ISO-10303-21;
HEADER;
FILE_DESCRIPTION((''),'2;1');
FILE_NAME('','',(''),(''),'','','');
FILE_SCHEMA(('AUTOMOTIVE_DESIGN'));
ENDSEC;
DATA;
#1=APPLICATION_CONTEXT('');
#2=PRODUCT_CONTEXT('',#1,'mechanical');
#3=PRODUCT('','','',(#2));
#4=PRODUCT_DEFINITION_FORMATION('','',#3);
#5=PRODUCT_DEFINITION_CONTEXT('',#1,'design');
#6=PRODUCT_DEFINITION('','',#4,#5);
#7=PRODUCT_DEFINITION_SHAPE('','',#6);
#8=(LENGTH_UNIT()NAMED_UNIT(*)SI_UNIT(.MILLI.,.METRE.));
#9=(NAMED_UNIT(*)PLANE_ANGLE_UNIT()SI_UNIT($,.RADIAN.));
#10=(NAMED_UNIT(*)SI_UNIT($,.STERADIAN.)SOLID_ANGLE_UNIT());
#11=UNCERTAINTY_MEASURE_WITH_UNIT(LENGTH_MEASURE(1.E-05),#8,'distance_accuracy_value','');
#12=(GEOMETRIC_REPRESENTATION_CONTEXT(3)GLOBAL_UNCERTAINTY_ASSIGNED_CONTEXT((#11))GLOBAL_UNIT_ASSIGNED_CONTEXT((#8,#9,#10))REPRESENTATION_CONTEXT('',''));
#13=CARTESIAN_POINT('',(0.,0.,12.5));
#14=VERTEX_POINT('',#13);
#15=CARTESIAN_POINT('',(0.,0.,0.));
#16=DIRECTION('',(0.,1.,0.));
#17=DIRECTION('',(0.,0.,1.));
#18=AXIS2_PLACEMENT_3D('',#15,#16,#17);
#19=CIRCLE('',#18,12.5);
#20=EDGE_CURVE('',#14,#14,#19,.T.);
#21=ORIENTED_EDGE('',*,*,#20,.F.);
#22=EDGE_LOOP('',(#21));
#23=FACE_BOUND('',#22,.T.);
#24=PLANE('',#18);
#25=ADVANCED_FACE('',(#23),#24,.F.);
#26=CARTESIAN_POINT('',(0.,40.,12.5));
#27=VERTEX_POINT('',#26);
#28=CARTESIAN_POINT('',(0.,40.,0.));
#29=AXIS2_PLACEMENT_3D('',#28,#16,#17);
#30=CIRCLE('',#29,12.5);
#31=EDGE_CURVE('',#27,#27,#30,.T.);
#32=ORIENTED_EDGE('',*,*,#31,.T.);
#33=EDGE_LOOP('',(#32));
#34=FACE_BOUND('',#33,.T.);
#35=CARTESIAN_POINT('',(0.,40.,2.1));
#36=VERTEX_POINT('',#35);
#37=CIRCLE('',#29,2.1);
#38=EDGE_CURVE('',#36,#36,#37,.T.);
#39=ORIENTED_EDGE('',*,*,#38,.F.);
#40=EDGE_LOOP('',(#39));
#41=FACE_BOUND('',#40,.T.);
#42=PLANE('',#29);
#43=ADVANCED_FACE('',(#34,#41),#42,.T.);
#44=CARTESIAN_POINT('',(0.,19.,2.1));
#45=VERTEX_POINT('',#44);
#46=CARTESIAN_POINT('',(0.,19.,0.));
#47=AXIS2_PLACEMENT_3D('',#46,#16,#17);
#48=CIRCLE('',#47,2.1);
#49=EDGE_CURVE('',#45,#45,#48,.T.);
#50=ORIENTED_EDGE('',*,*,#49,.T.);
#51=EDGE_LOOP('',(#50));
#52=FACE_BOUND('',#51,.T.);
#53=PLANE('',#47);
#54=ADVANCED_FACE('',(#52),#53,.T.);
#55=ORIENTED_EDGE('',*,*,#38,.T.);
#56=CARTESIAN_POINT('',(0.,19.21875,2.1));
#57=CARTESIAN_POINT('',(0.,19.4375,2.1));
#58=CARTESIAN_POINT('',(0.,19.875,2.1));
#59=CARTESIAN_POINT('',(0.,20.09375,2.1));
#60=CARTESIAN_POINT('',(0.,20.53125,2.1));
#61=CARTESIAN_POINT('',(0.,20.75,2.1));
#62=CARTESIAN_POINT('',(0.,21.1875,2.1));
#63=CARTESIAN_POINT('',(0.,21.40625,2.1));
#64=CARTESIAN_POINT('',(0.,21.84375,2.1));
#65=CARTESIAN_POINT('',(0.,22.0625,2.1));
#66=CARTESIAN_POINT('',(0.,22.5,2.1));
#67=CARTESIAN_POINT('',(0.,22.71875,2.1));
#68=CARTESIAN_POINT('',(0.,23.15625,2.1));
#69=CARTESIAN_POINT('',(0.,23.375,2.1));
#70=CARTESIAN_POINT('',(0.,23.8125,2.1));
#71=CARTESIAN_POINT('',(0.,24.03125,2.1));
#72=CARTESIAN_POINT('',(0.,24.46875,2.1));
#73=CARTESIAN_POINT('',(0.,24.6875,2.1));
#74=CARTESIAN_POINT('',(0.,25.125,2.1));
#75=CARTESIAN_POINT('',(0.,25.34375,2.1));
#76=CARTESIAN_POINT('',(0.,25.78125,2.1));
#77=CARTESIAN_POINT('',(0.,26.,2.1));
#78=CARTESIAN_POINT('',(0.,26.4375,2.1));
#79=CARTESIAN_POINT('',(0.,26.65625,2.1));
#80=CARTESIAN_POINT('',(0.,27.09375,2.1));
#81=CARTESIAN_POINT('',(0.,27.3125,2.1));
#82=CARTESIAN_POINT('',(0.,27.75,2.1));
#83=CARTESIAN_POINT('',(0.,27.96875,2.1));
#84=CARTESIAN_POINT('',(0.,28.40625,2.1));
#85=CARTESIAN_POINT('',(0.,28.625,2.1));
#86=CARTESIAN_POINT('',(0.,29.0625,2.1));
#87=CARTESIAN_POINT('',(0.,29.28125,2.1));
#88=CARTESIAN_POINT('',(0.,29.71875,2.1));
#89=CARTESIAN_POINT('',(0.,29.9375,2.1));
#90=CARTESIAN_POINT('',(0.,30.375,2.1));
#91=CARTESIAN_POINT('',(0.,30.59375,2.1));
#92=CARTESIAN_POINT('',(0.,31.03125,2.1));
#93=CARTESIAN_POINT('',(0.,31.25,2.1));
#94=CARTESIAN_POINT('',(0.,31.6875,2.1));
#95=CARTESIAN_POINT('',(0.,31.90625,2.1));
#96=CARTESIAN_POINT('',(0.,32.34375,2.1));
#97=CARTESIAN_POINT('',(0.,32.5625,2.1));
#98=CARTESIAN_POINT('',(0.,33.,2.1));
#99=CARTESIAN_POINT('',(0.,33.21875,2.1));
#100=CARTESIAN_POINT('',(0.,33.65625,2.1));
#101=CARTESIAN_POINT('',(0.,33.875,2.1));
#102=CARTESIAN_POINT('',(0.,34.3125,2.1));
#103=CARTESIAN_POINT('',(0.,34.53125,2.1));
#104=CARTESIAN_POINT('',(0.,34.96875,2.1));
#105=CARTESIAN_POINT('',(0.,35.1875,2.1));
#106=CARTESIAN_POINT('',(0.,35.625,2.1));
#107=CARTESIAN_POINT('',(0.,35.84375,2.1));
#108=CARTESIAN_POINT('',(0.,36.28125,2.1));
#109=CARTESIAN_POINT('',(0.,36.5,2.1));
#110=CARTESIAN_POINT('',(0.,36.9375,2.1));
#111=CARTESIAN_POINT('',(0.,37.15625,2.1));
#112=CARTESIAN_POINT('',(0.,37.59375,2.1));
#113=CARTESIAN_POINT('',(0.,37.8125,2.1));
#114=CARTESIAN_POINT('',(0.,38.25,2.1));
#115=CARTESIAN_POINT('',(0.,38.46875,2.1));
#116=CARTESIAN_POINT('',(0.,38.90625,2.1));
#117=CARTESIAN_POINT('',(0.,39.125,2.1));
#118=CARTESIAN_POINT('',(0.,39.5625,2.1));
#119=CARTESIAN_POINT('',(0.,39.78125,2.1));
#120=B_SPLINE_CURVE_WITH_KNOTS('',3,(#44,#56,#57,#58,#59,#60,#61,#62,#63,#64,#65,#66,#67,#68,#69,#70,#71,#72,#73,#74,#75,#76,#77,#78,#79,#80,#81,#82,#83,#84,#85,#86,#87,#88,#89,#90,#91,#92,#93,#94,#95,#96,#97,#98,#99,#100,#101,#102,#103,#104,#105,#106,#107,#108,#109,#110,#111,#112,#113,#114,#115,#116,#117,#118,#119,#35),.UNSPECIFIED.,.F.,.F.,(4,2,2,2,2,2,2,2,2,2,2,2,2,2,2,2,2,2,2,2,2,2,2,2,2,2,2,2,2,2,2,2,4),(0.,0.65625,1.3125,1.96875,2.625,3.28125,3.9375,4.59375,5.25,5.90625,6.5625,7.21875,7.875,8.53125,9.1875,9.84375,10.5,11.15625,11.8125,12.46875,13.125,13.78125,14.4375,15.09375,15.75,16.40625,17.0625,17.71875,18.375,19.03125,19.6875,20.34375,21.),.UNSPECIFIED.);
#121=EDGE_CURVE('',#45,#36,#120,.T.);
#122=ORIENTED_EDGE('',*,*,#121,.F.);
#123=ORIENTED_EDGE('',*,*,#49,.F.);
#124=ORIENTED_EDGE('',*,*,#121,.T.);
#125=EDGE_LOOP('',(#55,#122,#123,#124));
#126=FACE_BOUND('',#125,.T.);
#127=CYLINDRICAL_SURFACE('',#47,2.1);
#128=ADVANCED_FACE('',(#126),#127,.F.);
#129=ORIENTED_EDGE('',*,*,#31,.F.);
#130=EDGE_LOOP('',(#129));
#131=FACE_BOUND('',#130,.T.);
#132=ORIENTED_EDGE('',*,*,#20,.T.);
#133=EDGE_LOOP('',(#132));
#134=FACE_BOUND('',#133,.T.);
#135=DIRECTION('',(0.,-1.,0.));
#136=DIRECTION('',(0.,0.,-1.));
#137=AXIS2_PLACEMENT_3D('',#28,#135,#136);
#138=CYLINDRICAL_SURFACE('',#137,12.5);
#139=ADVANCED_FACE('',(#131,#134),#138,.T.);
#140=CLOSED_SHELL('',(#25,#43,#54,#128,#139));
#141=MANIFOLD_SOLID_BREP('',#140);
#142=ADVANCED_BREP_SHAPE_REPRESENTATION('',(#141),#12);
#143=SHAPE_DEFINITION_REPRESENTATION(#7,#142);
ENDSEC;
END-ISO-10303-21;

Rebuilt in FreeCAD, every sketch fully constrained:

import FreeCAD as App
import Part
import Sketcher
from FreeCAD import Vector

doc = App.newDocument("Part")
body = doc.addObject("PartDesign::Body", "Body")

sketch1 = body.newObject("Sketcher::SketchObject", "Sketch")
sketch1.AttachmentSupport = (doc.getObject("XZ_Plane"), [""])
sketch1.MapMode = "FlatFace"
sketch1.addGeometry(Part.Circle(Vector(0, 0, 0), Vector(0, 0, 1), 12.5), False)
sketch1.addConstraint(Sketcher.Constraint("Coincident", 0, 3, -1, 1))
sketch1.addConstraint(Sketcher.Constraint("Diameter", 0, 25.0))
pad1 = body.newObject("PartDesign::Pad", "Pad")
pad1.Profile = sketch1
pad1.Length = 40
pad1.Reversed = True

sketch2 = body.newObject("Sketcher::SketchObject", "Sketch001")
sketch2.AttachmentSupport = (doc.getObject("XZ_Plane"), [""])
sketch2.MapMode = "FlatFace"
sketch2.AttachmentOffset = App.Placement(Vector(0, 0, -40), App.Rotation())
sketch2.addGeometry(Part.Circle(Vector(0, 0, 0), Vector(0, 0, 1), 2.1), False)
sketch2.addConstraint(Sketcher.Constraint("Coincident", 0, 3, -1, 1))
sketch2.addConstraint(Sketcher.Constraint("Diameter", 0, 4.2))
pocket1 = body.newObject("PartDesign::Pocket", "Pocket")
pocket1.Profile = sketch2
pocket1.Length = 21
pocket1.Reversed = True

doc.recompute()
